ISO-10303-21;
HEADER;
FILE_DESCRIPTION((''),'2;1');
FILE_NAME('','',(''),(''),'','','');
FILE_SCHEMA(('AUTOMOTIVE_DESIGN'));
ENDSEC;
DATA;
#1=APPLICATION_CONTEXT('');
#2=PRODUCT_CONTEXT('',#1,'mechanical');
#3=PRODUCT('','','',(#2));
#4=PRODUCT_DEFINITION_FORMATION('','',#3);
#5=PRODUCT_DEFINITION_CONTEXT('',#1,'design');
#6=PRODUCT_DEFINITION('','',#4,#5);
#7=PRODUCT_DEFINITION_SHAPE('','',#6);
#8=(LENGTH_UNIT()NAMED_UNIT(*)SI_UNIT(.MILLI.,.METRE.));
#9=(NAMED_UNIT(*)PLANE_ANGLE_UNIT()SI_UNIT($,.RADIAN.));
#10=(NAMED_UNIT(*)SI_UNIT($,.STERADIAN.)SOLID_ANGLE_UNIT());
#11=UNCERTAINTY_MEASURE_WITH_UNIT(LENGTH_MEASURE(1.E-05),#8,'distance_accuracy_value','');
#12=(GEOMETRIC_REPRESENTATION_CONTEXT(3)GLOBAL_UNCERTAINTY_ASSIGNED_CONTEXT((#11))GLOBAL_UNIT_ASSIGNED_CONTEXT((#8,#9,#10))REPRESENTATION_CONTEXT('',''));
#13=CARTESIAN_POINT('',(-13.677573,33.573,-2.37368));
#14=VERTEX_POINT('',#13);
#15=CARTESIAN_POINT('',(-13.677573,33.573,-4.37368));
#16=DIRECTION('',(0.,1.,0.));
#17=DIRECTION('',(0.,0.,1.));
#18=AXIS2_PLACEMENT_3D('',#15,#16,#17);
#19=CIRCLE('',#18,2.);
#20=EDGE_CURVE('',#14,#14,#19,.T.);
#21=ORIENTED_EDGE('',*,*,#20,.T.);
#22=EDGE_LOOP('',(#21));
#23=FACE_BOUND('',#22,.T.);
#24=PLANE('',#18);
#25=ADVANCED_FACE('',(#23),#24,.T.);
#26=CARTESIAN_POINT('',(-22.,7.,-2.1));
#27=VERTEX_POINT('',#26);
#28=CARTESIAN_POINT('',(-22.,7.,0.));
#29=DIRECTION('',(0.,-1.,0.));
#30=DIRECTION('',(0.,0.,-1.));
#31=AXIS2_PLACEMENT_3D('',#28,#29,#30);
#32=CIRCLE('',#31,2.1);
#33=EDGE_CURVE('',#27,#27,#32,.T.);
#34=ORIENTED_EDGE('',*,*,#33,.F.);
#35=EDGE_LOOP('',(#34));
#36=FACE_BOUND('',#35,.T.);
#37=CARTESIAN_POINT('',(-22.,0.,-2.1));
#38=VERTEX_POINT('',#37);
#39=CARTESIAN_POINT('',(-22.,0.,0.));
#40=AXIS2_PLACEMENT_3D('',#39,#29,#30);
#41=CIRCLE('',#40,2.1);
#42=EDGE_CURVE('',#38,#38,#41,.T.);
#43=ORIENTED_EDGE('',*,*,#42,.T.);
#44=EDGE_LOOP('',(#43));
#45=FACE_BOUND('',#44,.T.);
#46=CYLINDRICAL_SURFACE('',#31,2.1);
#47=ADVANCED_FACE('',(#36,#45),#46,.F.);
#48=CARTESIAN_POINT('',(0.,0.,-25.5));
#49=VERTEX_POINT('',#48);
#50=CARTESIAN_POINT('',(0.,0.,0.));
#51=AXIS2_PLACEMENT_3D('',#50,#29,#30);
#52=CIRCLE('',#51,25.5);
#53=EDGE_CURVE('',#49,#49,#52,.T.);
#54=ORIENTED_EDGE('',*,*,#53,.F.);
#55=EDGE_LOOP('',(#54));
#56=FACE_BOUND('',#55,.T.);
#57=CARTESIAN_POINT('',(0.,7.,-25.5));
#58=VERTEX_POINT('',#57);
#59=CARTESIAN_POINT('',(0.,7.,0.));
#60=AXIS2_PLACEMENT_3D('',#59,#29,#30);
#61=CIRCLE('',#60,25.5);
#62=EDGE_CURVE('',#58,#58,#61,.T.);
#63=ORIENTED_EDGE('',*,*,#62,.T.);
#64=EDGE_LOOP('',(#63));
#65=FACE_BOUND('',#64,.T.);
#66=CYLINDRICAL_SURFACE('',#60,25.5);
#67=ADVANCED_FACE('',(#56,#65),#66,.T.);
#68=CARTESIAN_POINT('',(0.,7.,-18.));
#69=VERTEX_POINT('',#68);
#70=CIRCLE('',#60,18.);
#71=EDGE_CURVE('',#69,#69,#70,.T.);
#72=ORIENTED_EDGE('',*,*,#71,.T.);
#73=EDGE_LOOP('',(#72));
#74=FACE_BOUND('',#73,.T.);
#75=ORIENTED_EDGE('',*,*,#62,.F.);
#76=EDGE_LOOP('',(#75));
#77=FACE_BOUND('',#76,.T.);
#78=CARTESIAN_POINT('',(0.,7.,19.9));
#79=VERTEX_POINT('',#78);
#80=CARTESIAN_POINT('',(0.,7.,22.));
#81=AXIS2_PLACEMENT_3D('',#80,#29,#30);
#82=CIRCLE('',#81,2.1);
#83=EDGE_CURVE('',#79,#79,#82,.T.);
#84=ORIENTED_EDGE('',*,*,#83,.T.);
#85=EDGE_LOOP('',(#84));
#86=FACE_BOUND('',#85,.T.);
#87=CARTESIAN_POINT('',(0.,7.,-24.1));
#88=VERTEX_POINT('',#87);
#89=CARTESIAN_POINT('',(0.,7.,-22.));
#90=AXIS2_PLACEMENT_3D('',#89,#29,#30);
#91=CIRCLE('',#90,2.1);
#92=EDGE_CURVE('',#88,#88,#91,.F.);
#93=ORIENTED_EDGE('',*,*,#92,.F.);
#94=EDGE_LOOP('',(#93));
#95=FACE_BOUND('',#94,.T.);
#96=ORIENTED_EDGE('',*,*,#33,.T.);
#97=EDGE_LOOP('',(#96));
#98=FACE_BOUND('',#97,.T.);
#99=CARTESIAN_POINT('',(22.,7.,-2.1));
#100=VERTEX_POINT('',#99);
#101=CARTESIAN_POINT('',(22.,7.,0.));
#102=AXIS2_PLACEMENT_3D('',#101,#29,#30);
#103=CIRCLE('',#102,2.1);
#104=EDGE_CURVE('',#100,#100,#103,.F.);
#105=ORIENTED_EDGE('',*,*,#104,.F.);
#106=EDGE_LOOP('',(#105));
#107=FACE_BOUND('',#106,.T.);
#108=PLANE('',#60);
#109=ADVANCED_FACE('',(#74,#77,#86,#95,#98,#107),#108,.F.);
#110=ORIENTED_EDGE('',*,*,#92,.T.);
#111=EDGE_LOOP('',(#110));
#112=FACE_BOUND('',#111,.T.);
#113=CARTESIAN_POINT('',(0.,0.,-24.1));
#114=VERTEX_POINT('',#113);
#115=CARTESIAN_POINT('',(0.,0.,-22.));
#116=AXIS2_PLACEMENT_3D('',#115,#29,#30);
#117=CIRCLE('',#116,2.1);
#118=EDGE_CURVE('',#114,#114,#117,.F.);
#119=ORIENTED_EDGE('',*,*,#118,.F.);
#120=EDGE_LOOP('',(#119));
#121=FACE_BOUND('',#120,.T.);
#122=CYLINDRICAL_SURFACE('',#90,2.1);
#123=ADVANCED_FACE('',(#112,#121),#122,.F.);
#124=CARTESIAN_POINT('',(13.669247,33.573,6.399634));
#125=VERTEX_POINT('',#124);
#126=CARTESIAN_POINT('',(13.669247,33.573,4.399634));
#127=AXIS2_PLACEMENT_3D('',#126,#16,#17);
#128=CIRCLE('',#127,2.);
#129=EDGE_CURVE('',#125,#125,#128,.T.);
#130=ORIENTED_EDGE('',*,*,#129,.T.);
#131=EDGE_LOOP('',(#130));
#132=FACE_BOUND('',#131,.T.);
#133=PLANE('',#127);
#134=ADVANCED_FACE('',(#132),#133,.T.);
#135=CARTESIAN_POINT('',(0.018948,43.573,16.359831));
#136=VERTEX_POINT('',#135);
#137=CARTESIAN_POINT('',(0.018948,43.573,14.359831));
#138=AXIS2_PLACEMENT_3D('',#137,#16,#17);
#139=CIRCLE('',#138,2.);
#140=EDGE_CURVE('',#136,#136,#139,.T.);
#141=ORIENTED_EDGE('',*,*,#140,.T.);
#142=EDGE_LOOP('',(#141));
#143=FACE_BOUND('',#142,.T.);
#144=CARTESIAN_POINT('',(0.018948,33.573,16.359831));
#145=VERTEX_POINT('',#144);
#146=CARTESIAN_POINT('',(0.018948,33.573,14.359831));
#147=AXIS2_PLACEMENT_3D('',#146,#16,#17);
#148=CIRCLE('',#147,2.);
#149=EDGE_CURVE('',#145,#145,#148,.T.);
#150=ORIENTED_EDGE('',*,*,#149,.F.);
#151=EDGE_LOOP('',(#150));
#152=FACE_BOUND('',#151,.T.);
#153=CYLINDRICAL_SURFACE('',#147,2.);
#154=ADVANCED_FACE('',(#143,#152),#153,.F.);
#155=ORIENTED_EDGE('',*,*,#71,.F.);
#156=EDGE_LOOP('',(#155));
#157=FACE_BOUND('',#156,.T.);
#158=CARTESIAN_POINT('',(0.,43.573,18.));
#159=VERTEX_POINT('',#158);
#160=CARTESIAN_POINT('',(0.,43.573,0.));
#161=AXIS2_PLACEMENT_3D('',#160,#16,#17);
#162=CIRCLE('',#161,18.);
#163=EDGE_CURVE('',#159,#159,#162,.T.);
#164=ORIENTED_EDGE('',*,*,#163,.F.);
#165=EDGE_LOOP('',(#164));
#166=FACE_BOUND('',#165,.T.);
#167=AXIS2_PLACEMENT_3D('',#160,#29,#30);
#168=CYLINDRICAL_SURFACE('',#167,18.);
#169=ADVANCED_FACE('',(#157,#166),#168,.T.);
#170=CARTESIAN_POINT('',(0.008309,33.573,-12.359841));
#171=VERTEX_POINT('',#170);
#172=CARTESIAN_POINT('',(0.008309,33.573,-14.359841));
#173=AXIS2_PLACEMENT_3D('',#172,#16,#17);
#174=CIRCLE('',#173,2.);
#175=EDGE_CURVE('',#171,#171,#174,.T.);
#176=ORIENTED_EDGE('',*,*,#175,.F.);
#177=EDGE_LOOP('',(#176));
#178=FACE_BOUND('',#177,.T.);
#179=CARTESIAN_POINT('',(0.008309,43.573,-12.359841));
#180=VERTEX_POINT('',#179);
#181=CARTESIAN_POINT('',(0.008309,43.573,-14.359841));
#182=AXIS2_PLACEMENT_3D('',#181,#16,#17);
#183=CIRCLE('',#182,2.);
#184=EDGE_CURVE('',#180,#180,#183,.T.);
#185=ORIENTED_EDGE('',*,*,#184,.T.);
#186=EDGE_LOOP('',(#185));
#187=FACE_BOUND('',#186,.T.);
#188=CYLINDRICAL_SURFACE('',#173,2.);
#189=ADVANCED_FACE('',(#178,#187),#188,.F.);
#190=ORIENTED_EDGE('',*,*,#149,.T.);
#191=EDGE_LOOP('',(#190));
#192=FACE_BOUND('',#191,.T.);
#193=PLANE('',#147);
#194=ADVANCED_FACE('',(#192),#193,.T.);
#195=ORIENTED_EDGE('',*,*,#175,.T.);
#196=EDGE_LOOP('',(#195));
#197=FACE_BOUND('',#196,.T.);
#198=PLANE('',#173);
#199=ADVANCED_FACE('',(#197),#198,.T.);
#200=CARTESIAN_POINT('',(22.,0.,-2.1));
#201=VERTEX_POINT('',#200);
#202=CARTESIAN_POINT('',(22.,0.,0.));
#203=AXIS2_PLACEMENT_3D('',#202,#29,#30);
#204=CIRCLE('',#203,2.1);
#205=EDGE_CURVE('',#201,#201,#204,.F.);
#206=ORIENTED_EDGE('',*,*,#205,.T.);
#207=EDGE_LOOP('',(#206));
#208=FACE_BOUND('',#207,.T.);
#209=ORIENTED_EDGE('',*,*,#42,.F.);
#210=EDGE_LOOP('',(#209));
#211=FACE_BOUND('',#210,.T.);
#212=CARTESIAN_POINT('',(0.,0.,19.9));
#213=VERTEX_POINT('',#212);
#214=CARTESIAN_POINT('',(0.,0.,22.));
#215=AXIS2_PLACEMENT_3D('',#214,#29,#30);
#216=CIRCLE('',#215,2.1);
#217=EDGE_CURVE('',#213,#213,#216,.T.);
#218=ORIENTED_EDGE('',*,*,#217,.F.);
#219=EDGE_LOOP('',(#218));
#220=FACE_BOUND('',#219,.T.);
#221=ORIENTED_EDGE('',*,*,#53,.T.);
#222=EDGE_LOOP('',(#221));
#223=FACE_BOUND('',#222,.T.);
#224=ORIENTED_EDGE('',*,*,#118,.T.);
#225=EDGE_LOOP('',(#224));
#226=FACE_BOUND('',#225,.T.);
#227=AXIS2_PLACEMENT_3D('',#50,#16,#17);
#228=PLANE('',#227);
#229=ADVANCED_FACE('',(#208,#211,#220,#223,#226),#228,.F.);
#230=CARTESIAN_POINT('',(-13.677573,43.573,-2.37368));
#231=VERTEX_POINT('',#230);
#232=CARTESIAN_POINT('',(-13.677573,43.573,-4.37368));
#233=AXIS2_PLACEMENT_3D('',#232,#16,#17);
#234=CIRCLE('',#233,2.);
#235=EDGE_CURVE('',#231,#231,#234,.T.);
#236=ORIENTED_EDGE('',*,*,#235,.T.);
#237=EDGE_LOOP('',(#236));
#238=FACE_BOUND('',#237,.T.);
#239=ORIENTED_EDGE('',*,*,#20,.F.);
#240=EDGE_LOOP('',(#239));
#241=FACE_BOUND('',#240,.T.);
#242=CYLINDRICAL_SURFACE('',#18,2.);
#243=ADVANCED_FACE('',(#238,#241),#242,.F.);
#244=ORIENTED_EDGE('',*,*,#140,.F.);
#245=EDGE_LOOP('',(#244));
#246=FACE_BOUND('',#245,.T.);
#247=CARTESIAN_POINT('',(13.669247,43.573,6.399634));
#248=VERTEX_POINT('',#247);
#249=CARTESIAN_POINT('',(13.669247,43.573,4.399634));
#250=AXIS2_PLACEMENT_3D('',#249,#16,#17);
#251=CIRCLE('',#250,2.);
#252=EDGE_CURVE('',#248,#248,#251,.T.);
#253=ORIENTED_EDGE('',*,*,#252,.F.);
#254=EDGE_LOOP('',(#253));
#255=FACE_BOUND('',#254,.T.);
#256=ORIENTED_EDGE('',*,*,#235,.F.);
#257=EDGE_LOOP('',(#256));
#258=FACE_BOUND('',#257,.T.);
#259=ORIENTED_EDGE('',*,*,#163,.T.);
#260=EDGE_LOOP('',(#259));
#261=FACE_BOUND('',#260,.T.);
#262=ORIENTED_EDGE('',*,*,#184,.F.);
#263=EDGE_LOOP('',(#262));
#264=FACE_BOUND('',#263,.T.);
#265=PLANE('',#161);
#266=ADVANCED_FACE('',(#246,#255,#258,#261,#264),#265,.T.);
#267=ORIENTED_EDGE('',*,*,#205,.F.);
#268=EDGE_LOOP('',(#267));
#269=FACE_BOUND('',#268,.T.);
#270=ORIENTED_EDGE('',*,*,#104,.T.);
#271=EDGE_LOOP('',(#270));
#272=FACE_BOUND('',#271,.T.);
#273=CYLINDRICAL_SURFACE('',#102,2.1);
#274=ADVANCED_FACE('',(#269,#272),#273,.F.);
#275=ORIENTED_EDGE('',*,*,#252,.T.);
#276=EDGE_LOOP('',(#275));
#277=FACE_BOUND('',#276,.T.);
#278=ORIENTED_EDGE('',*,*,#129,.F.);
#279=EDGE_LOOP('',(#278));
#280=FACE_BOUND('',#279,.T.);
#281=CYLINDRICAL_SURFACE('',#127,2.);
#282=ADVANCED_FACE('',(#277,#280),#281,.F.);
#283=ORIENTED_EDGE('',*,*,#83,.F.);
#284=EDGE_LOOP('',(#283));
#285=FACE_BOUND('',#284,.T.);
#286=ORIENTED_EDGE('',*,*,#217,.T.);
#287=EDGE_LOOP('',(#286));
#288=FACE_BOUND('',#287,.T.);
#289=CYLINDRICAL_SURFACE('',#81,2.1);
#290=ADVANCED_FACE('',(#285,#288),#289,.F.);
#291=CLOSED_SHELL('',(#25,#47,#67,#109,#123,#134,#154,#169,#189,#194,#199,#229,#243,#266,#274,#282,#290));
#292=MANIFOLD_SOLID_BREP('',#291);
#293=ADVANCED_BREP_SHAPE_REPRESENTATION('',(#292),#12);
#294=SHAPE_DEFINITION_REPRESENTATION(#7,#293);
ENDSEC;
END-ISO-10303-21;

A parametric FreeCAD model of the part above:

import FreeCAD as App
import Part
import Sketcher

V = App.Vector

doc = App.newDocument("Part")
body = doc.addObject("PartDesign::Body", "Body")

# Sketch on XZ plane
sketch1 = body.newObject("Sketcher::SketchObject", "Sketch")
sketch1.AttachmentSupport = (doc.getObject("XZ_Plane"), [""])
sketch1.MapMode = "FlatFace"
sketch1.addGeometry(Part.Circle(V(0, 0, 0), V(0, 0, 1), 18), False)
sketch1.addConstraint(Sketcher.Constraint("Coincident", 0, 3, -1, 1))
sketch1.addConstraint(Sketcher.Constraint("Diameter", 0, 36.0))
pad1 = body.newObject("PartDesign::Pad", "Pad")
pad1.Profile = sketch1
pad1.Length = 43.573
pad1.Reversed = True

# Sketch on XZ plane
sketch2 = body.newObject("Sketcher::SketchObject", "Sketch001")
sketch2.AttachmentSupport = (doc.getObject("XZ_Plane"), [""])
sketch2.MapMode = "FlatFace"
sketch2.addGeometry(Part.Circle(V(0, 0, 0), V(0, 0, 1), 25.5), False)
sketch2.addGeometry(Part.Circle(V(0, 22, 0), V(0, 0, 1), 2.1), False)
sketch2.addGeometry(Part.Circle(V(-22, 0, 0), V(0, 0, 1), 2.1), False)
sketch2.addGeometry(Part.Circle(V(22, 0, 0), V(0, 0, 1), 2.1), False)
sketch2.addGeometry(Part.Circle(V(0, -22, 0), V(0, 0, 1), 2.1), False)
sketch2.addConstraint(Sketcher.Constraint("Coincident", 0, 3, -1, 1))
sketch2.addConstraint(Sketcher.Constraint("Equal", 1, 2))
sketch2.addConstraint(Sketcher.Constraint("Equal", 2, 3))
sketch2.addConstraint(Sketcher.Constraint("Equal", 3, 4))
sketch2.addConstraint(Sketcher.Constraint("Symmetric", 2, 3, 3, 3, -1, 1))
sketch2.addConstraint(Sketcher.Constraint("Symmetric", 1, 3, 4, 3, -1, 1))
sketch2.addConstraint(Sketcher.Constraint("PointOnObject", 1, 3, -2))
sketch2.addConstraint(Sketcher.Constraint("PointOnObject", 2, 3, -1))
sketch2.addConstraint(Sketcher.Constraint("Diameter", 0, 51.0))
sketch2.addConstraint(Sketcher.Constraint("Diameter", 1, 4.2))
sketch2.addConstraint(Sketcher.Constraint("DistanceY", -1, 1, 1, 3, 22.0))
sketch2.addConstraint(Sketcher.Constraint("DistanceX", 2, 3, -1, 1, 22.0))
pad2 = body.newObject("PartDesign::Pad", "Pad001")
pad2.Profile = sketch2
pad2.Length = 7
pad2.Reversed = True

# Sketch on XZ plane
sketch3 = body.newObject("Sketcher::SketchObject", "Sketch002")
sketch3.AttachmentSupport = (doc.getObject("XZ_Plane"), [""])
sketch3.MapMode = "FlatFace"
sketch3.AttachmentOffset = App.Placement(V(0, 0, -43.573), App.Rotation())
sketch3.addGeometry(Part.Circle(V(0.008309, -14.359841, 0), V(0, 0, 1), 2), False)
sketch3.addGeometry(Part.Circle(V(13.669247, 4.399634, 0), V(0, 0, 1), 2), False)
sketch3.addGeometry(Part.Circle(V(0.018948, 14.359831, 0), V(0, 0, 1), 2), False)
sketch3.addGeometry(Part.Circle(V(-13.677573, -4.37368, 0), V(0, 0, 1), 2), False)
sketch3.addConstraint(Sketcher.Constraint("Equal", 0, 1))
sketch3.addConstraint(Sketcher.Constraint("Equal", 1, 2))
sketch3.addConstraint(Sketcher.Constraint("Equal", 2, 3))
sketch3.addConstraint(Sketcher.Constraint("Diameter", 0, 4.0))
sketch3.addConstraint(Sketcher.Constraint("DistanceX", 2, 3, 1, 3, 13.650299))
sketch3.addConstraint(Sketcher.Constraint("DistanceX", -1, 1, 0, 3, 0.008309))
sketch3.addConstraint(Sketcher.Constraint("DistanceY", 0, 3, -1, 1, 14.359841))
sketch3.addConstraint(Sketcher.Constraint("DistanceY", -1, 1, 2, 3, 14.359831))
sketch3.addConstraint(Sketcher.Constraint("DistanceY", 3, 3, -1, 1, 4.37368))
sketch3.addConstraint(Sketcher.Constraint("DistanceX", 0, 3, 1, 3, 13.660938))
sketch3.addConstraint(Sketcher.Constraint("DistanceX", 3, 3, 0, 3, 13.685882))
sketch3.addConstraint(Sketcher.Constraint("DistanceY", -1, 1, 1, 3, 4.399634))
pocket1 = body.newObject("PartDesign::Pocket", "Pocket")
pocket1.Profile = sketch3
pocket1.Length = 10
pocket1.Reversed = True

doc.recompute()
